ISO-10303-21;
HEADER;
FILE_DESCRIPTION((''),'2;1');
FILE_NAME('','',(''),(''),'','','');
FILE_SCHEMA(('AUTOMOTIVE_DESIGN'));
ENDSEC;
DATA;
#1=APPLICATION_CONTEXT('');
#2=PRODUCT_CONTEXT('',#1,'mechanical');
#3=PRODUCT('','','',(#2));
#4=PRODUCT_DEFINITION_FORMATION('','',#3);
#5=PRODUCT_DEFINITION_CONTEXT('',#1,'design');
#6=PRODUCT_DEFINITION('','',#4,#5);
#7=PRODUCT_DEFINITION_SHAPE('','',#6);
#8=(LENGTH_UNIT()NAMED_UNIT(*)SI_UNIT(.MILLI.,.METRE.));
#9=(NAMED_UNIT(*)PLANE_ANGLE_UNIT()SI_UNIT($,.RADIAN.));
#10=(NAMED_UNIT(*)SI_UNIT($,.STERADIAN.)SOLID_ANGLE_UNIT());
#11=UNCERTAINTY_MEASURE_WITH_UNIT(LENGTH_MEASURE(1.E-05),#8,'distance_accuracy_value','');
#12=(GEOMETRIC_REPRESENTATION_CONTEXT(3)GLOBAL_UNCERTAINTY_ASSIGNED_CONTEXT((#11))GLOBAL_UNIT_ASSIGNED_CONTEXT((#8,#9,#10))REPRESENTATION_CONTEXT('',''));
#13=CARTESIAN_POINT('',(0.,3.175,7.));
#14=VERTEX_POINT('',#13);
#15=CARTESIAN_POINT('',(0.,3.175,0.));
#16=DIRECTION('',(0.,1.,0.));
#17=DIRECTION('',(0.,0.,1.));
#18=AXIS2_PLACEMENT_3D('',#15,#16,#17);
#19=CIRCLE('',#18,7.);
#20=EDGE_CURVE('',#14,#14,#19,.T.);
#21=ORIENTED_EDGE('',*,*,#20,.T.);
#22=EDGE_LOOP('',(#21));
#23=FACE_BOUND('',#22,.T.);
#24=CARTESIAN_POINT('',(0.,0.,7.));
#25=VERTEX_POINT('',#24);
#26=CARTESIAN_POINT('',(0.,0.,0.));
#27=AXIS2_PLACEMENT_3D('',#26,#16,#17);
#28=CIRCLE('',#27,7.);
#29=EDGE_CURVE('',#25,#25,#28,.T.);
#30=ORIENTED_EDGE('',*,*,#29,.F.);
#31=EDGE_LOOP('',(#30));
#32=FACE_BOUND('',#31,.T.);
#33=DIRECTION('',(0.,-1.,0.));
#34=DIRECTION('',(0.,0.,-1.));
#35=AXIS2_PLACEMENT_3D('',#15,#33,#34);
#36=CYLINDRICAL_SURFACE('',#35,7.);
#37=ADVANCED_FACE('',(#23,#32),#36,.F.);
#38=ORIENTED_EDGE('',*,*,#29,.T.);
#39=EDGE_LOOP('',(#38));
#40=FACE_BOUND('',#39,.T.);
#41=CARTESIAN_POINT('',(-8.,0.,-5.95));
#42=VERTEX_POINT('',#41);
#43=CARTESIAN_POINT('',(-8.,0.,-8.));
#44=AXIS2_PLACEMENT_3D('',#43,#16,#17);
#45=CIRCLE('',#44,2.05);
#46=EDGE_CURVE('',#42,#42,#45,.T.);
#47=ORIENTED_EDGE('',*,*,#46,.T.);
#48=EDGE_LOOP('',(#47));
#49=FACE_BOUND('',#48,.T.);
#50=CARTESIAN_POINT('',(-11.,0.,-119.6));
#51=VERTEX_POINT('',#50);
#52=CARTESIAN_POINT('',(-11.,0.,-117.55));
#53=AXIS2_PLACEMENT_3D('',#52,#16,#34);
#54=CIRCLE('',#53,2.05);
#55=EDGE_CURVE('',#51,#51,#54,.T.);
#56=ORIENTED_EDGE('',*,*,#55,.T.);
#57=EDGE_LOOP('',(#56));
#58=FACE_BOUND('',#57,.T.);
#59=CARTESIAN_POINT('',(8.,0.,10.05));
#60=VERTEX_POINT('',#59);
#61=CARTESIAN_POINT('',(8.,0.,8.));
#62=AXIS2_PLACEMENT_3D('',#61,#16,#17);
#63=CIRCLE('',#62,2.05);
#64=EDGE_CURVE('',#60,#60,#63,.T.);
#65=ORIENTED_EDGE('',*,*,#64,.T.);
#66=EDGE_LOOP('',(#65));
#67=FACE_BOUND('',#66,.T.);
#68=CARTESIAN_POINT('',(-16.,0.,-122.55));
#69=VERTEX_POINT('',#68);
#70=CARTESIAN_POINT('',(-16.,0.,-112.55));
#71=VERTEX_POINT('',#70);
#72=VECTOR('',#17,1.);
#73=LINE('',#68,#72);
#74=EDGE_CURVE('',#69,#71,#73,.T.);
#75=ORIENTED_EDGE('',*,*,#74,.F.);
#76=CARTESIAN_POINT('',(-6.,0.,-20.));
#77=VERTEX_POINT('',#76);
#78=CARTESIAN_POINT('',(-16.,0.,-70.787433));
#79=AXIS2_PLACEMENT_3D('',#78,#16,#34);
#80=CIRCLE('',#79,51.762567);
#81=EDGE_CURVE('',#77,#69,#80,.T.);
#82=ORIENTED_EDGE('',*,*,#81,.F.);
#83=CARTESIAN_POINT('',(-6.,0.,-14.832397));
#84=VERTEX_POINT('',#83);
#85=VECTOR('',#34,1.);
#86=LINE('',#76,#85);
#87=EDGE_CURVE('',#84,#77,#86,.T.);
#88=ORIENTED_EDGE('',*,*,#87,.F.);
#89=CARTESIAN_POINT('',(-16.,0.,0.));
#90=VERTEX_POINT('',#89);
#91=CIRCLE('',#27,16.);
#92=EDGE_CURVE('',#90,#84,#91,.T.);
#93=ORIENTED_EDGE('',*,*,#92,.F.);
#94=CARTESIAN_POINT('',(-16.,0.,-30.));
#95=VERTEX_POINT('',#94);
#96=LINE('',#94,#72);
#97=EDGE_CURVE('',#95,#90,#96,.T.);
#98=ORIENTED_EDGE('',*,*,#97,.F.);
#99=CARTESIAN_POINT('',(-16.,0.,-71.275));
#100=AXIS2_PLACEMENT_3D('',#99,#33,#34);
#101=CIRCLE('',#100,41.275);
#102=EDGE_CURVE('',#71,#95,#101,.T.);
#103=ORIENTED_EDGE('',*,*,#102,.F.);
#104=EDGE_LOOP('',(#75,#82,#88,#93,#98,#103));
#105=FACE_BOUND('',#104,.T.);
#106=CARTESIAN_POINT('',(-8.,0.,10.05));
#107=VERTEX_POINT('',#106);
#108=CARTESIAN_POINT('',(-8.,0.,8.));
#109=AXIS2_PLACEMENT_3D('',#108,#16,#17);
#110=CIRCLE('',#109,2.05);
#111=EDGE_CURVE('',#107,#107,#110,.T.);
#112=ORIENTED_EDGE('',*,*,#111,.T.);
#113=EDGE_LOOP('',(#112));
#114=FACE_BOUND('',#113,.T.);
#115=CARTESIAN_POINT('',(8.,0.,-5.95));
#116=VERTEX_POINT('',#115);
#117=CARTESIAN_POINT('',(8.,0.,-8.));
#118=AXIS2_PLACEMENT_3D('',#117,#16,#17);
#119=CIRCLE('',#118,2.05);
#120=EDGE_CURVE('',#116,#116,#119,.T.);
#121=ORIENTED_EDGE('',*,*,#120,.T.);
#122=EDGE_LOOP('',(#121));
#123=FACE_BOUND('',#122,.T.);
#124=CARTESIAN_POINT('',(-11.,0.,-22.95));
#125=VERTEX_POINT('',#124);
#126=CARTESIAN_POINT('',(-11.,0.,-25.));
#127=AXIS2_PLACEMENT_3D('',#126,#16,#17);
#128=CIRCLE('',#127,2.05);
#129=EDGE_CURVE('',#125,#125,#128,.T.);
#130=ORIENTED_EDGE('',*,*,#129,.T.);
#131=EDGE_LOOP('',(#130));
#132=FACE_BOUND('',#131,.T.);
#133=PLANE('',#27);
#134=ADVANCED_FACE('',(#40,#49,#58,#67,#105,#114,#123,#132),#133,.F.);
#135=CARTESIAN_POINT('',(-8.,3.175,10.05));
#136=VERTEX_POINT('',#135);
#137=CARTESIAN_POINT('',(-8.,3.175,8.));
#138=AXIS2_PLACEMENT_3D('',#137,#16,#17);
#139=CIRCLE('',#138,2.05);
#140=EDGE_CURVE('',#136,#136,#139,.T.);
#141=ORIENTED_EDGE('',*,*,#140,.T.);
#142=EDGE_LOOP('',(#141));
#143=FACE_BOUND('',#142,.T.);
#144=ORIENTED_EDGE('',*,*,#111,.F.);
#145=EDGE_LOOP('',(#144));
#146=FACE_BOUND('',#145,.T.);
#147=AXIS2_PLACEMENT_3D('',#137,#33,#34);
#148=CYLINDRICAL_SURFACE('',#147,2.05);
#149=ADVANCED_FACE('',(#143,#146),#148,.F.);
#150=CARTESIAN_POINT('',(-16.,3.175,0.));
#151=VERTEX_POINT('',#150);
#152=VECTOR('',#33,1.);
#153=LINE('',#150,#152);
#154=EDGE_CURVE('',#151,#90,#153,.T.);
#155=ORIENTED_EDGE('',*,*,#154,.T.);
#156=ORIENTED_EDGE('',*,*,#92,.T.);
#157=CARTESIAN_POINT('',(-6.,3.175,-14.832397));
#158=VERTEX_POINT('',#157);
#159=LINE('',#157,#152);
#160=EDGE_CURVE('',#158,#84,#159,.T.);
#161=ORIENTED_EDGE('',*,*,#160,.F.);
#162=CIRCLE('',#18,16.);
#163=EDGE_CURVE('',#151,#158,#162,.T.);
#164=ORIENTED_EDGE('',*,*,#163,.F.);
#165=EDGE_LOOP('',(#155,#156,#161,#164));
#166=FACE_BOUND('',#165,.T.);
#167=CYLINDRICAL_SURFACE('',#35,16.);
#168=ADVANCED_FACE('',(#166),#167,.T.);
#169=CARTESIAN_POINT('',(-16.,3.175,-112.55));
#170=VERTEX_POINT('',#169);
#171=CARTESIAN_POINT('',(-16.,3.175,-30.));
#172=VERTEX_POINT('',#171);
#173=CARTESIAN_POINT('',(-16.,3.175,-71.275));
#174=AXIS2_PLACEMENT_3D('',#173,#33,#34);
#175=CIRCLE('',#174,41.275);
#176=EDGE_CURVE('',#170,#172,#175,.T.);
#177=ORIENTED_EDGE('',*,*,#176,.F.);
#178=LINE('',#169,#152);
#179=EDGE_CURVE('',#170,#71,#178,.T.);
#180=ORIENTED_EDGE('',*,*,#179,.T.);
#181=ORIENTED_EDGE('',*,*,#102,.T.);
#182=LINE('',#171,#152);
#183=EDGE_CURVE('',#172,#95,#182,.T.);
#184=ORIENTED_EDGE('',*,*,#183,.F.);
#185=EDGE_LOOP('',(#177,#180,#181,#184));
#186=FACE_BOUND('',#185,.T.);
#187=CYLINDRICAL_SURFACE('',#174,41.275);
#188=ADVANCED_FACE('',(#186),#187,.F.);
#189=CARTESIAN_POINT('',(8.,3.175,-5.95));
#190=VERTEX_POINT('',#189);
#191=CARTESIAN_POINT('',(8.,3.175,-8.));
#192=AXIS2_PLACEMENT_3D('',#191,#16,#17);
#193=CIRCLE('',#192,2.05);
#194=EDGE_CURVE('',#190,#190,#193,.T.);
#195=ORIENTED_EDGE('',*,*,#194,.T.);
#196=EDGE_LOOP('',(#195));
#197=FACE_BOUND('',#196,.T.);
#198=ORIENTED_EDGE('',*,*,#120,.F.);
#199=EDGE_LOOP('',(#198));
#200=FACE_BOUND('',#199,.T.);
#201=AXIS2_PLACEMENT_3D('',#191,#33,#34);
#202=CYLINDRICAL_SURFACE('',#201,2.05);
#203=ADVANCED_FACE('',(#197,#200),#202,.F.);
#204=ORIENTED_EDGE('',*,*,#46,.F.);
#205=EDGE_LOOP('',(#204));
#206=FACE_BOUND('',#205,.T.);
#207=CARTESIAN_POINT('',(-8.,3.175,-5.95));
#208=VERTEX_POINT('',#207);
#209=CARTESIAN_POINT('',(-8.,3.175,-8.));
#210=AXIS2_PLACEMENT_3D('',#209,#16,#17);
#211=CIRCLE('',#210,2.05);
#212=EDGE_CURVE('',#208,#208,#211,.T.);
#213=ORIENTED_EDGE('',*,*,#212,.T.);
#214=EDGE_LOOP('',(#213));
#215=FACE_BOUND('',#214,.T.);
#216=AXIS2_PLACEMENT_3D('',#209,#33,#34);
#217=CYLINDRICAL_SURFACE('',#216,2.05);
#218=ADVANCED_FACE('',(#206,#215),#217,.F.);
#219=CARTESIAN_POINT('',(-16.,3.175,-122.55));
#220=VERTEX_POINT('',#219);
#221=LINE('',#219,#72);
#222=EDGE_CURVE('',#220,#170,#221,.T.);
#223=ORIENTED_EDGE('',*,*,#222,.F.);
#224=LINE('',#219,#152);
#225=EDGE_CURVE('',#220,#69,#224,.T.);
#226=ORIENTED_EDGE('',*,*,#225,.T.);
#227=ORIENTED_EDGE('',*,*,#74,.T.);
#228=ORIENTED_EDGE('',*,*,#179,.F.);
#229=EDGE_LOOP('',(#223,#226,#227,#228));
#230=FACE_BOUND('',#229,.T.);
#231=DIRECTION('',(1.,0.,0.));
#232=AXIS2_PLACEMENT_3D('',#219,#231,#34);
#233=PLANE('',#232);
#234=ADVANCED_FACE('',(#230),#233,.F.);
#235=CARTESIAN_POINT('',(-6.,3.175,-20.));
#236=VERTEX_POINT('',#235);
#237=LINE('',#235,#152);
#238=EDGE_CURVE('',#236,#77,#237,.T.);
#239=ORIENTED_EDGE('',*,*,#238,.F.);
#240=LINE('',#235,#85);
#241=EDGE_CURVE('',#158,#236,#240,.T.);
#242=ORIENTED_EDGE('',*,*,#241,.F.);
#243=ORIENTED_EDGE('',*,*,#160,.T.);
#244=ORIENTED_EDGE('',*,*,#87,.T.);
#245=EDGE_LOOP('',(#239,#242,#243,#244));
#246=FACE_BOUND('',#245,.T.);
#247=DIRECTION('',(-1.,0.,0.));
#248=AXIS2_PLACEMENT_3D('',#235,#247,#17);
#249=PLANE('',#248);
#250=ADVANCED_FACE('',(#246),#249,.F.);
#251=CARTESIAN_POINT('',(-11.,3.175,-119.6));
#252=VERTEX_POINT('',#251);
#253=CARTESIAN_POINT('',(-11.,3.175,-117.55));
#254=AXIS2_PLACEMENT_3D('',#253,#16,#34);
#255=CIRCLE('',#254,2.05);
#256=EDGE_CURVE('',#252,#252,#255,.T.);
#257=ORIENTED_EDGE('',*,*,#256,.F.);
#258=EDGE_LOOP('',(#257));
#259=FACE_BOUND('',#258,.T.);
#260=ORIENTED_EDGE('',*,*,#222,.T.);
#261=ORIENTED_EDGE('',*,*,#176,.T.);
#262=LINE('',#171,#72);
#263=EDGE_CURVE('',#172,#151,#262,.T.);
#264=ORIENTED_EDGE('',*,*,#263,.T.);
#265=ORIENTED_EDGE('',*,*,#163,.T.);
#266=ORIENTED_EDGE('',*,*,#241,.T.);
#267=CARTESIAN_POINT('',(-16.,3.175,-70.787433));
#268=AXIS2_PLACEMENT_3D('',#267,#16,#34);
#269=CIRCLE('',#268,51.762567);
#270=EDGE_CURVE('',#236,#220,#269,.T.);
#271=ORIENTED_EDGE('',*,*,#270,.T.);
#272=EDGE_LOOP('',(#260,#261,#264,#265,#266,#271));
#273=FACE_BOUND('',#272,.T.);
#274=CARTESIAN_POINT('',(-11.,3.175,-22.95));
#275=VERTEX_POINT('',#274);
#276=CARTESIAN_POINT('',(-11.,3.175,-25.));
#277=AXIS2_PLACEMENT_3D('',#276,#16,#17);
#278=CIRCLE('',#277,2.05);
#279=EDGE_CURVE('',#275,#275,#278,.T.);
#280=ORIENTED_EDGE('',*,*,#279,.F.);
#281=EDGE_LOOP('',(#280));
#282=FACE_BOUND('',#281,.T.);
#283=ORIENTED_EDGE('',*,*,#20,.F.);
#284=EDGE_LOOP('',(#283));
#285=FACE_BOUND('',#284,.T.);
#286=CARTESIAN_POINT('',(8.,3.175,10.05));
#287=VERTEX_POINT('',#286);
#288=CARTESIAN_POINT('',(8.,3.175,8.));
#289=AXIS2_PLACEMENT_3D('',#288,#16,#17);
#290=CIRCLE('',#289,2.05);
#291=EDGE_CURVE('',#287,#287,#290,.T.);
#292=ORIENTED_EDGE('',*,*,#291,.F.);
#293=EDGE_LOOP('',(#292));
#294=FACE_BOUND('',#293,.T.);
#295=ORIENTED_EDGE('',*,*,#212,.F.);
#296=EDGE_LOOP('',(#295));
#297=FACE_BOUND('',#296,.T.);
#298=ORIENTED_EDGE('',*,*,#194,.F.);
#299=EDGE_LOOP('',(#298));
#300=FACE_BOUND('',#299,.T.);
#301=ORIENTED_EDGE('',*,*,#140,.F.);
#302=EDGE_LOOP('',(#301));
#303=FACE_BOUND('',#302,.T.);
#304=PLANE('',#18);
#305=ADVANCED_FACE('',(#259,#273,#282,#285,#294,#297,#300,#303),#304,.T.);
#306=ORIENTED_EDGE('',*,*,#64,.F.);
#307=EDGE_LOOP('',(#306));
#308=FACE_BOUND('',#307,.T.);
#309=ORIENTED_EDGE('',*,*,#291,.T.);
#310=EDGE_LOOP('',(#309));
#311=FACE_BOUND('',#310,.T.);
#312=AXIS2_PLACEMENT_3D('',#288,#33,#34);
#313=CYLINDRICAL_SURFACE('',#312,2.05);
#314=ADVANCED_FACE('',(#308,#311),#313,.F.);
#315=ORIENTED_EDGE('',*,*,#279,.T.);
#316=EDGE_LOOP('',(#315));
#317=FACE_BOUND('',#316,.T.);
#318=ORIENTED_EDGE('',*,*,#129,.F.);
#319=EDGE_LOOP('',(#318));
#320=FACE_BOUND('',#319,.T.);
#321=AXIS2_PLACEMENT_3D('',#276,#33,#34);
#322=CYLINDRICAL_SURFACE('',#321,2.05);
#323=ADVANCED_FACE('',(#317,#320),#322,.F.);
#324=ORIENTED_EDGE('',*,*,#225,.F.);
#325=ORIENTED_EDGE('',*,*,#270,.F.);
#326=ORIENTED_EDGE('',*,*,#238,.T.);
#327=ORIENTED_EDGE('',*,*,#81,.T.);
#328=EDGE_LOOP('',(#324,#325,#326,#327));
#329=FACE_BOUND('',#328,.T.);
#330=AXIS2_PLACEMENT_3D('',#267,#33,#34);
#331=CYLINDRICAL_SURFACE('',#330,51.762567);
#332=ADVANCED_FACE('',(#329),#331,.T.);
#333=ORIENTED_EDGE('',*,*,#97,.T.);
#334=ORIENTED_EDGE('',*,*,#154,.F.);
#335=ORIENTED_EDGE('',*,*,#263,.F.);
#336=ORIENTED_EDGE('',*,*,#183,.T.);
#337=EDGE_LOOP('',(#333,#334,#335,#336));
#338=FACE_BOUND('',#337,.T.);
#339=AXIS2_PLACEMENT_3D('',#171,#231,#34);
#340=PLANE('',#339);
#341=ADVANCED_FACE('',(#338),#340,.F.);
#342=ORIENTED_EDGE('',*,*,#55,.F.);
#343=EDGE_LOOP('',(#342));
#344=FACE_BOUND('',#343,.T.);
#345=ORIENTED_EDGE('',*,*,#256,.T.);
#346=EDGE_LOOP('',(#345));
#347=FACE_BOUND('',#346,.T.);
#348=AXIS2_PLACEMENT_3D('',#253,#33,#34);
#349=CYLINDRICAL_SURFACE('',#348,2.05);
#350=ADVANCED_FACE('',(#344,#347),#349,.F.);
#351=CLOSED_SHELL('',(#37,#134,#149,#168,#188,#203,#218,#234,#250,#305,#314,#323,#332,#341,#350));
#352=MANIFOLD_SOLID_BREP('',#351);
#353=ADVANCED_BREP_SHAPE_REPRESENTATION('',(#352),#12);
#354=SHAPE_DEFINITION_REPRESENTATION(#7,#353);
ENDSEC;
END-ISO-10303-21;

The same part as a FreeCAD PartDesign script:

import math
import FreeCAD as App
import Part
import Sketcher
from FreeCAD import Vector
Q = App.Units.Quantity

doc = App.newDocument("Part")
body = doc.addObject("PartDesign::Body", "Body")

sketch1 = body.newObject("Sketcher::SketchObject", "Sketch")
sketch1.AttachmentSupport = (doc.getObject("XZ_Plane"), [""])
sketch1.MapMode = "FlatFace"
sketch1.addGeometry([
    Part.LineSegment(Vector(-16, -122.55, 0), Vector(-16, -112.55, 0)),
    Part.ArcOfCircle(Part.Circle(Vector(-16, -71.275, 0), Vector(0, 0, 1), 41.275), math.radians(-90), math.radians(90)),
    Part.LineSegment(Vector(-16, -30, 0), Vector(-16, 0, 0)),
    Part.ArcOfCircle(Part.Circle(Vector(0, 0, 0), Vector(0, 0, 1), 16), math.radians(0), math.radians(180)),
    Part.ArcOfCircle(Part.Circle(Vector(0, 0, 0), Vector(0, 0, 1), 16), math.radians(-112.024313), math.radians(0)),
    Part.LineSegment(Vector(-6, -14.832397, 0), Vector(-6, -20, 0)),
    Part.ArcOfCircle(Part.Circle(Vector(-16, -70.787433, 0), Vector(0, 0, 1), 51.762567), math.radians(-90), math.radians(78.861004)),
    Part.Circle(Vector(-8, 8, 0), Vector(0, 0, 1), 2.05),
    Part.Circle(Vector(-8, -8, 0), Vector(0, 0, 1), 2.05),
    Part.Circle(Vector(-11, -25, 0), Vector(0, 0, 1), 2.05),
    Part.Circle(Vector(0, 0, 0), Vector(0, 0, 1), 7),
    Part.Circle(Vector(8, 8, 0), Vector(0, 0, 1), 2.05),
    Part.Circle(Vector(8, -8, 0), Vector(0, 0, 1), 2.05),
    Part.Circle(Vector(-11, -117.55, 0), Vector(0, 0, 1), 2.05),
], False)
sketch1.addConstraint([
    Sketcher.Constraint("Coincident", 0, 2, 1, 1),
    Sketcher.Constraint("Coincident", 1, 2, 2, 1),
    Sketcher.Constraint("Tangent", 2, 2, 3, 2),
    Sketcher.Constraint("Tangent", 3, 1, 4, 2),
    Sketcher.Constraint("Coincident", 4, 1, 5, 1),
    Sketcher.Constraint("Coincident", 5, 2, 6, 2),
    Sketcher.Constraint("Coincident", 6, 1, 0, 1),
    Sketcher.Constraint("Vertical", 0),
    Sketcher.Constraint("Vertical", 2),
    Sketcher.Constraint("Vertical", 5),
    Sketcher.Constraint("Coincident", 3, 3, -1, 1),
    Sketcher.Constraint("Coincident", 10, 3, -1, 1),
    Sketcher.Constraint("Equal", 3, 4),
    Sketcher.Constraint("Equal", 7, 8),
    Sketcher.Constraint("Equal", 8, 9),
    Sketcher.Constraint("Equal", 9, 11),
    Sketcher.Constraint("Equal", 11, 12),
    Sketcher.Constraint("Equal", 12, 13),
    Sketcher.Constraint("Symmetric", 8, 3, 11, 3, -1, 1),
    Sketcher.Constraint("Symmetric", 7, 3, 12, 3, -1, 1),
    Sketcher.Constraint("Symmetric", 7, 3, 11, 3, -2),
    Sketcher.Constraint("PointOnObject", 3, 1, -1),
    Sketcher.Constraint("Vertical", 1, 3, 6, 3),
    Sketcher.Constraint("Vertical", 9, 3, 13, 3),
    Sketcher.Constraint("Vertical", 6, 3, 0, 2),
    Sketcher.Constraint("Vertical", 0, 2, 1, 2),
    Sketcher.Constraint("Diameter", 10, Q("14 mm")),
    Sketcher.Constraint("Radius", 3, Q("16 mm")),
    Sketcher.Constraint("Diameter", 7, Q("4.1 mm")),
    Sketcher.Constraint("DistanceY", 0, 1, 0, 2, Q("10 mm")),
    Sketcher.Constraint("DistanceY", 2, 1, 2, 2, Q("30 mm")),
    Sketcher.Constraint("DistanceX", 7, 3, -1, 1, Q("8 mm")),
    Sketcher.Constraint("DistanceY", -1, 1, 7, 3, Q("8 mm")),
    Sketcher.Constraint("DistanceX", 9, 3, -1, 1, Q("11 mm")),
    Sketcher.Constraint("DistanceY", 9, 3, -1, 1, Q("25 mm")),
    Sketcher.Constraint("DistanceX", 4, 1, -1, 1, Q("6 mm")),
    Sketcher.Constraint("DistanceY", 5, 2, -1, 1, Q("20 mm")),
    Sketcher.Constraint("Radius", 1, Q("41.275 mm")),
    Sketcher.Constraint("DistanceY", 13, 3, 0, 2, Q("5 mm")),
])
pad1 = body.newObject("PartDesign::Pad", "Pad")
pad1.Profile = sketch1
pad1.Length = 3.175
pad1.Reversed = True

doc.recompute()
